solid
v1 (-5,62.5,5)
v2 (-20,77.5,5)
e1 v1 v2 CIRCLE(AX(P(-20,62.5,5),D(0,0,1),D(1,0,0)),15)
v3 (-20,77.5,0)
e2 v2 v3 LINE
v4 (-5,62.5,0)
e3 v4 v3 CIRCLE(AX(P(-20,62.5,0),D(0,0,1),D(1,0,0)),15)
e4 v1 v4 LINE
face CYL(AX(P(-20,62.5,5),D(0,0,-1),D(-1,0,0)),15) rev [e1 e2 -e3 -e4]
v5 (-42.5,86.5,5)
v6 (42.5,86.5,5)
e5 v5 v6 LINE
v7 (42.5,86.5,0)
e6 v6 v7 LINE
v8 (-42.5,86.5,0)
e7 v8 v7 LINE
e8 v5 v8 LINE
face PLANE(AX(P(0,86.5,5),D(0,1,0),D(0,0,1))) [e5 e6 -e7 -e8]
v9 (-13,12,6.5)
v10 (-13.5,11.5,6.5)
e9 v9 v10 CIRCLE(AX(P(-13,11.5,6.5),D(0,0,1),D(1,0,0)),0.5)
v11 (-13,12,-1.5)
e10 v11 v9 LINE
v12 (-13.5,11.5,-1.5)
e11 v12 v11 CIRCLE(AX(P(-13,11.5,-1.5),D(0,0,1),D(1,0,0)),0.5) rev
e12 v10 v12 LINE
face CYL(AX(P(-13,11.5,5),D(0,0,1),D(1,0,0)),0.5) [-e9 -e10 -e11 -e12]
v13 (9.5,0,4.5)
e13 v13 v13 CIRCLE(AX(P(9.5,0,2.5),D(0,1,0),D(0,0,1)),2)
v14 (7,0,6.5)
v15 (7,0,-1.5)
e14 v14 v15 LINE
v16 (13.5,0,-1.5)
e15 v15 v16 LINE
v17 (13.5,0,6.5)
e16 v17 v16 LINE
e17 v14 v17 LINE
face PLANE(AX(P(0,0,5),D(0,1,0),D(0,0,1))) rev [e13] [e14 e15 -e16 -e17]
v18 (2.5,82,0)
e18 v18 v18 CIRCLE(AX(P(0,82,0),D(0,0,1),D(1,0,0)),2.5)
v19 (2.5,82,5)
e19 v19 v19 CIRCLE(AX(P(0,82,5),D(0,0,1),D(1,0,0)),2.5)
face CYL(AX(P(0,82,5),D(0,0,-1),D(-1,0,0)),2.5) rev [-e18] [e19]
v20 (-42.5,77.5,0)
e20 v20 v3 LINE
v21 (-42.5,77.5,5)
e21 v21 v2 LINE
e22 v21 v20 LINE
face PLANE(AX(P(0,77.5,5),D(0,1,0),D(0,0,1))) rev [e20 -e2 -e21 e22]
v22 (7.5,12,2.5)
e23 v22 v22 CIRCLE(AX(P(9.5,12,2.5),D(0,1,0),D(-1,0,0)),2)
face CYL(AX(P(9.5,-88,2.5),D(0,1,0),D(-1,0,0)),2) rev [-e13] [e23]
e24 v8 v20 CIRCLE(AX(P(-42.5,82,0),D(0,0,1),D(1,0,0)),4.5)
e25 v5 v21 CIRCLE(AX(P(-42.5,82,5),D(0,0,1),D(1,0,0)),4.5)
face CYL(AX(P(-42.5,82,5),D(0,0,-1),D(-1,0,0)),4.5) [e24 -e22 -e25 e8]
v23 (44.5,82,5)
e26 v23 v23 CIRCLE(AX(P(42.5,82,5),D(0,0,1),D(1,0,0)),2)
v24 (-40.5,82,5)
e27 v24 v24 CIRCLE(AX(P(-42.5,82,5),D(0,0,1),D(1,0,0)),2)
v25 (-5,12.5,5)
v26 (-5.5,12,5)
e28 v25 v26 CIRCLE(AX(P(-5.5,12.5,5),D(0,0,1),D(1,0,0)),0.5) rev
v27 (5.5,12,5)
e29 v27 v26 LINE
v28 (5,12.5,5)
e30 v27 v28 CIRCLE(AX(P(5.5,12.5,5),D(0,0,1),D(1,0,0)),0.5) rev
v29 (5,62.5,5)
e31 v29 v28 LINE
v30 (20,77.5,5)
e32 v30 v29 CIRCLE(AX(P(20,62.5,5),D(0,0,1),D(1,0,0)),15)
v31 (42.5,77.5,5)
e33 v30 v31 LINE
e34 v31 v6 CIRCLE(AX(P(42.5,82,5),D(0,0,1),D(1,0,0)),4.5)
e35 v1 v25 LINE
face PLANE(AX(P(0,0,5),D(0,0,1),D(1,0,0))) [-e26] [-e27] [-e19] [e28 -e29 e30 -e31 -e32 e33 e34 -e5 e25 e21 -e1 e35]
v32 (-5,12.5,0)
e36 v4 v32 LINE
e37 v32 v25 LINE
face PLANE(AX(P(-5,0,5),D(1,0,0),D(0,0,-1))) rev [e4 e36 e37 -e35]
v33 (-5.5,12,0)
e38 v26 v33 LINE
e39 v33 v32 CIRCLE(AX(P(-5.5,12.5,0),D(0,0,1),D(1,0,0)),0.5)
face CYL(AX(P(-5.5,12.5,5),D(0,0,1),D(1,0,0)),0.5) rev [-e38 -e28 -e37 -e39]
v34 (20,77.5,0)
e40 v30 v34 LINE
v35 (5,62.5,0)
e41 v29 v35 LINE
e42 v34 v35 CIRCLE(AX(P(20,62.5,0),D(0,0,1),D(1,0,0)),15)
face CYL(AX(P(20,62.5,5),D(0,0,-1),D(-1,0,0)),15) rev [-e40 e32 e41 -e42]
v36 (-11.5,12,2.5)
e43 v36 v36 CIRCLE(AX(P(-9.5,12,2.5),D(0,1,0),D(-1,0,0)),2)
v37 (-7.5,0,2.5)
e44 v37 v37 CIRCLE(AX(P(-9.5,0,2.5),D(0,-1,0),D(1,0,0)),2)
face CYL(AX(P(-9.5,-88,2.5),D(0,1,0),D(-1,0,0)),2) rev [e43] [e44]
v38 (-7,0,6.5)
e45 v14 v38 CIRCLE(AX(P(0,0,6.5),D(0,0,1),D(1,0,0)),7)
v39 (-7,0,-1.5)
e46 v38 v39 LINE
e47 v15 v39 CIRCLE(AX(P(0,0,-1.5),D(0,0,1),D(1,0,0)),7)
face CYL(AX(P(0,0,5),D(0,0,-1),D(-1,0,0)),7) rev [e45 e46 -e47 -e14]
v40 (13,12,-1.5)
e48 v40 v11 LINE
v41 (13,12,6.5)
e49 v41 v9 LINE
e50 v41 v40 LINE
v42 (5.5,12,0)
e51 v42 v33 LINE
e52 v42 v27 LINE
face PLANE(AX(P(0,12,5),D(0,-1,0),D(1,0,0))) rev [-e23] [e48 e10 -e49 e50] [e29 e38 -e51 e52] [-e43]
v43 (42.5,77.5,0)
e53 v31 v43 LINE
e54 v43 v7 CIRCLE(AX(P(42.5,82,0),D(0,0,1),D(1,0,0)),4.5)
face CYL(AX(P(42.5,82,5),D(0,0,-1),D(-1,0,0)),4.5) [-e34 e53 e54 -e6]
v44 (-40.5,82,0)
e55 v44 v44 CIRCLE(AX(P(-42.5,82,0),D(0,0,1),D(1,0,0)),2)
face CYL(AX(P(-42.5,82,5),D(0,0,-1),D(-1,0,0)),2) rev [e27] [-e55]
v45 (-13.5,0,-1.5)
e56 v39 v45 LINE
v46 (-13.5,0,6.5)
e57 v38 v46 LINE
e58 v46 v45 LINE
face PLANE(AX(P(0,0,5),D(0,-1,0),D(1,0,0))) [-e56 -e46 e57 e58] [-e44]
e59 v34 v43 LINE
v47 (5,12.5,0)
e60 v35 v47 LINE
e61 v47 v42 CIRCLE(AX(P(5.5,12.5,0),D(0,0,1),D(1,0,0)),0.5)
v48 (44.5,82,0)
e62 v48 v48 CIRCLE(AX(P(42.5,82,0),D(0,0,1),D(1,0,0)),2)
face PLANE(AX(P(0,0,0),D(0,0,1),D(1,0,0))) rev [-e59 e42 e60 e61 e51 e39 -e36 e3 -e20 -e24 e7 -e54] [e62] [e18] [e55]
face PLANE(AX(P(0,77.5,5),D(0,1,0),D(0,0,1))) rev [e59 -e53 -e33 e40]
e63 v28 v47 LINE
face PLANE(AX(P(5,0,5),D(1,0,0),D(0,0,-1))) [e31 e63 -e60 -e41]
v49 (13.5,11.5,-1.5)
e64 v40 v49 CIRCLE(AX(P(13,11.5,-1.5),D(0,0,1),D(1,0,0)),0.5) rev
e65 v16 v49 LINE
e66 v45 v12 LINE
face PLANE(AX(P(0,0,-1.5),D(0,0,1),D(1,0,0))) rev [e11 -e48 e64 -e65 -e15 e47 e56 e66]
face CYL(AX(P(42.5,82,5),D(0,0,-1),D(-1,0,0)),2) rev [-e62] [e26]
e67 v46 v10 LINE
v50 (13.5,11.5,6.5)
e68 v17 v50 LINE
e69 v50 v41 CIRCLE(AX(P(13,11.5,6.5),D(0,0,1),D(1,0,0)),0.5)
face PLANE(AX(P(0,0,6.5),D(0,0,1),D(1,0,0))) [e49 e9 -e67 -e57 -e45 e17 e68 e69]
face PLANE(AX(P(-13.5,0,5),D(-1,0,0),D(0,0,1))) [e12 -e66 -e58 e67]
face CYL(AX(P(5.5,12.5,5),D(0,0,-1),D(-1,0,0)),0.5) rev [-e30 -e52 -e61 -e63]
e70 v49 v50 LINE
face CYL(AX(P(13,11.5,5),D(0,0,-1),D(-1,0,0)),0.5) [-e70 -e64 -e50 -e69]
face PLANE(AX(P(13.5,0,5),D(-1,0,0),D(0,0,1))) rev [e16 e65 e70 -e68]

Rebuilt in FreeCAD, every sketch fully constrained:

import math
import FreeCAD as App
import Part
import Sketcher

V = App.Vector


def edges_at(feature, points):
    """Names of the edges that pass closest to the given points."""
    edges = feature.Shape.Edges
    near = lambda p: min(range(len(edges)), key=lambda i: edges[i].distToShape(Part.Vertex(*p))[0])
    return sorted({f"Edge{near(p) + 1}" for p in points})

doc = App.newDocument("Part")
body = doc.addObject("PartDesign::Body", "Body")

sketch1 = doc.addObject("Sketcher::SketchObject", "Sketch")
body.addObject(sketch1)
sketch1.AttachmentSupport = (doc.XY_Plane, [""])
sketch1.MapMode = "FlatFace"
sketch1.addGeometry([
    Part.LineSegment(V(7, 0, 0), V(13.5, 0, 0)),
    Part.LineSegment(V(13.5, 0, 0), V(13.5, 12, 0)),
    Part.LineSegment(V(13.5, 12, 0), V(5, 12, 0)),
    Part.LineSegment(V(5, 12, 0), V(5, 62.5, 0)),
    Part.ArcOfCircle(Part.Circle(V(20, 62.5, 0), V(0, 0, 1), 15), math.radians(90), math.radians(180)),
    Part.LineSegment(V(20, 77.5, 0), V(42.5, 77.5, 0)),
    Part.ArcOfCircle(Part.Circle(V(42.5, 82, 0), V(0, 0, 1), 4.5), math.radians(-90), math.radians(90)),
    Part.LineSegment(V(42.5, 86.5, 0), V(-42.5, 86.5, 0)),
    Part.ArcOfCircle(Part.Circle(V(-42.5, 82, 0), V(0, 0, 1), 4.5), math.radians(90), math.radians(270)),
    Part.LineSegment(V(-42.5, 77.5, 0), V(-20, 77.5, 0)),
    Part.ArcOfCircle(Part.Circle(V(-20, 62.5, 0), V(0, 0, 1), 15), math.radians(0), math.radians(90)),
    Part.LineSegment(V(-5, 62.5, 0), V(-5, 12, 0)),
    Part.LineSegment(V(-5, 12, 0), V(-13.5, 12, 0)),
    Part.LineSegment(V(-13.5, 12, 0), V(-13.5, 0, 0)),
    Part.LineSegment(V(-13.5, 0, 0), V(-7, 0, 0)),
    Part.ArcOfCircle(Part.Circle(V(0, 0, 0), V(0, 0, 1), 7), math.radians(0), math.radians(180)),
    Part.Circle(V(-42.5, 82, 0), V(0, 0, 1), 2),
    Part.Circle(V(0, 82, 0), V(0, 0, 1), 2.5),
    Part.Circle(V(42.5, 82, 0), V(0, 0, 1), 2),
], False)
sketch1.addConstraint([
    Sketcher.Constraint("Coincident", 0, 2, 1, 1),
    Sketcher.Constraint("Coincident", 1, 2, 2, 1),
    Sketcher.Constraint("Coincident", 2, 2, 3, 1),
    Sketcher.Constraint("Tangent", 3, 2, 4, 2),
    Sketcher.Constraint("Tangent", 4, 1, 5, 1),
    Sketcher.Constraint("Tangent", 5, 2, 6, 1),
    Sketcher.Constraint("Tangent", 6, 2, 7, 1),
    Sketcher.Constraint("Tangent", 7, 2, 8, 1),
    Sketcher.Constraint("Tangent", 8, 2, 9, 1),
    Sketcher.Constraint("Tangent", 9, 2, 10, 2),
    Sketcher.Constraint("Tangent", 10, 1, 11, 1),
    Sketcher.Constraint("Coincident", 11, 2, 12, 1),
    Sketcher.Constraint("Coincident", 12, 2, 13, 1),
    Sketcher.Constraint("Coincident", 13, 2, 14, 1),
    Sketcher.Constraint("Coincident", 14, 2, 15, 2),
    Sketcher.Constraint("Coincident", 15, 1, 0, 1),
    Sketcher.Constraint("Horizontal", 0),
    Sketcher.Constraint("Vertical", 1),
    Sketcher.Constraint("Horizontal", 2),
    Sketcher.Constraint("Vertical", 3),
    Sketcher.Constraint("Horizontal", 5),
    Sketcher.Constraint("Horizontal", 7),
    Sketcher.Constraint("Horizontal", 9),
    Sketcher.Constraint("Vertical", 11),
    Sketcher.Constraint("Horizontal", 12),
    Sketcher.Constraint("Vertical", 13),
    Sketcher.Constraint("Horizontal", 14),
    Sketcher.Constraint("Coincident", 15, 3, -1, 1),
    Sketcher.Constraint("Coincident", 16, 3, 8, 3),
    Sketcher.Constraint("Coincident", 18, 3, 6, 3),
    Sketcher.Constraint("Equal", 6, 8),
    Sketcher.Constraint("Equal", 4, 10),
    Sketcher.Constraint("Equal", 16, 18),
    Sketcher.Constraint("Symmetric", 0, 2, 13, 2, -1, 1),
    Sketcher.Constraint("Symmetric", 2, 2, 11, 2, -2),
    Sketcher.Constraint("PointOnObject", 17, 3, -2),
    Sketcher.Constraint("PointOnObject", 0, 2, -1),
    Sketcher.Constraint("Horizontal", 16, 3, 17, 3),
    Sketcher.Constraint("Equal", 5, 9),
    Sketcher.Constraint("Diameter", 16, 4.0),
    Sketcher.Constraint("Diameter", 17, 5.0),
    Sketcher.Constraint("Radius", 4, 15.0),
    Sketcher.Constraint("Radius", 15, 7.0),
    Sketcher.Constraint("Radius", 6, 4.5),
    Sketcher.Constraint("DistanceX", 7, 2, 7, 1, 85.0),
    Sketcher.Constraint("DistanceY", 1, 1, 1, 2, 12.0),
    Sketcher.Constraint("DistanceX", 0, 1, 0, 2, 6.5),
    Sketcher.Constraint("DistanceX", 2, 2, 2, 1, 8.5),
    Sketcher.Constraint("DistanceY", 3, 1, 3, 2, 50.5),
])
pad1 = doc.addObject("PartDesign::Pad", "Pad")
body.addObject(pad1)
pad1.Profile = sketch1
pad1.Length = 5

sketch2 = doc.addObject("Sketcher::SketchObject", "Sketch001")
body.addObject(sketch2)
sketch2.AttachmentSupport = (doc.XY_Plane, [""])
sketch2.MapMode = "FlatFace"
sketch2.addGeometry([
    Part.ArcOfCircle(Part.Circle(V(0, 0, 0), V(0, 0, 1), 7), math.radians(0), math.radians(44)),
    Part.LineSegment(V(7, 0, 0), V(14, 0, 0)),
    Part.LineSegment(V(14, 0, 0), V(14, 12, 0)),
    Part.LineSegment(V(14, 12, 0), V(-14, 12, 0)),
    Part.LineSegment(V(-14, 12, 0), V(-14, 0, 0)),
    Part.LineSegment(V(-14, 0, 0), V(-7, 0, 0)),
    Part.ArcOfCircle(Part.Circle(V(0, 0, 0), V(0, 0, 1), 7), math.radians(136), math.radians(180)),
    Part.ArcOfCircle(Part.Circle(V(0, 0, 0), V(0, 0, 1), 7), math.radians(90), math.radians(136)),
    Part.ArcOfCircle(Part.Circle(V(0, 0, 0), V(0, 0, 1), 7), math.radians(44), math.radians(90)),
], False)
sketch2.addConstraint([
    Sketcher.Constraint("Coincident", 0, 1, 1, 1),
    Sketcher.Constraint("Coincident", 1, 2, 2, 1),
    Sketcher.Constraint("Coincident", 2, 2, 3, 1),
    Sketcher.Constraint("Coincident", 3, 2, 4, 1),
    Sketcher.Constraint("Coincident", 4, 2, 5, 1),
    Sketcher.Constraint("Coincident", 5, 2, 6, 2),
    Sketcher.Constraint("Tangent", 6, 1, 7, 2),
    Sketcher.Constraint("Tangent", 7, 1, 8, 2),
    Sketcher.Constraint("Tangent", 8, 1, 0, 2),
    Sketcher.Constraint("Horizontal", 1),
    Sketcher.Constraint("Vertical", 2),
    Sketcher.Constraint("Horizontal", 3),
    Sketcher.Constraint("Vertical", 4),
    Sketcher.Constraint("Horizontal", 5),
    Sketcher.Constraint("Coincident", 0, 3, -1, 1),
    Sketcher.Constraint("Coincident", 6, 3, -1, 1),
    Sketcher.Constraint("Equal", 0, 6),
    Sketcher.Constraint("Symmetric", 1, 2, 4, 2, -1, 1),
    Sketcher.Constraint("PointOnObject", 0, 1, -1),
    Sketcher.Constraint("PointOnObject", 7, 1, -2),
    Sketcher.Constraint("Horizontal", 6, 1, 8, 1),
    Sketcher.Constraint("Radius", 0, 7.0),
    Sketcher.Constraint("DistanceX", 3, 2, 3, 1, 27.0),
    Sketcher.Constraint("DistanceY", 2, 1, 2, 2, 12.0),
    Sketcher.Constraint("DistanceX", 6, 1, -1, 1, 5.0),
])
pad2 = doc.addObject("PartDesign::Pad", "Pad001")
body.addObject(pad2)
pad2.Profile = sketch2
pad2.Type = "TwoLengths"
pad2.Length = 6.5
pad2.Length2 = 1.5

sketch3 = doc.addObject("Sketcher::SketchObject", "Sketch002")
body.addObject(sketch3)
sketch3.AttachmentSupport = (doc.XZ_Plane, [""])
sketch3.MapMode = "FlatFace"
sketch3.AttachmentOffset = App.Placement(V(0, 0, -12), App.Rotation())
sketch3.addGeometry([
    Part.Circle(V(9.5, 2.5, 0), V(0, 0, 1), 2),
    Part.Circle(V(-9.5, 2.5, 0), V(0, 0, 1), 2),
], False)
sketch3.addConstraint([
    Sketcher.Constraint("Equal", 0, 1),
    Sketcher.Constraint("Symmetric", 0, 3, 1, 3, -2),
    Sketcher.Constraint("Diameter", 0, 4.0),
    Sketcher.Constraint("DistanceX", 1, 3, 0, 3, 19.0),
    Sketcher.Constraint("DistanceY", -1, 1, 0, 3, 2.5),
])
pocket1 = doc.addObject("PartDesign::Pocket", "Pocket")
body.addObject(pocket1)
pocket1.Profile = sketch3
pocket1.Length = 100
pocket1.Reversed = True
doc.recompute()

fillet = doc.addObject("PartDesign::Fillet", "Fillet")
body.addObject(fillet)
fillet.Base = (pocket1, edges_at(pocket1, [
    (5, 12, 2.5),
    (13.5, 12, 2.5),
    (-13.5, 12, 2.5),
    (-5, 12, 2.5),
]))
fillet.Radius = 0.5

doc.recompute()
